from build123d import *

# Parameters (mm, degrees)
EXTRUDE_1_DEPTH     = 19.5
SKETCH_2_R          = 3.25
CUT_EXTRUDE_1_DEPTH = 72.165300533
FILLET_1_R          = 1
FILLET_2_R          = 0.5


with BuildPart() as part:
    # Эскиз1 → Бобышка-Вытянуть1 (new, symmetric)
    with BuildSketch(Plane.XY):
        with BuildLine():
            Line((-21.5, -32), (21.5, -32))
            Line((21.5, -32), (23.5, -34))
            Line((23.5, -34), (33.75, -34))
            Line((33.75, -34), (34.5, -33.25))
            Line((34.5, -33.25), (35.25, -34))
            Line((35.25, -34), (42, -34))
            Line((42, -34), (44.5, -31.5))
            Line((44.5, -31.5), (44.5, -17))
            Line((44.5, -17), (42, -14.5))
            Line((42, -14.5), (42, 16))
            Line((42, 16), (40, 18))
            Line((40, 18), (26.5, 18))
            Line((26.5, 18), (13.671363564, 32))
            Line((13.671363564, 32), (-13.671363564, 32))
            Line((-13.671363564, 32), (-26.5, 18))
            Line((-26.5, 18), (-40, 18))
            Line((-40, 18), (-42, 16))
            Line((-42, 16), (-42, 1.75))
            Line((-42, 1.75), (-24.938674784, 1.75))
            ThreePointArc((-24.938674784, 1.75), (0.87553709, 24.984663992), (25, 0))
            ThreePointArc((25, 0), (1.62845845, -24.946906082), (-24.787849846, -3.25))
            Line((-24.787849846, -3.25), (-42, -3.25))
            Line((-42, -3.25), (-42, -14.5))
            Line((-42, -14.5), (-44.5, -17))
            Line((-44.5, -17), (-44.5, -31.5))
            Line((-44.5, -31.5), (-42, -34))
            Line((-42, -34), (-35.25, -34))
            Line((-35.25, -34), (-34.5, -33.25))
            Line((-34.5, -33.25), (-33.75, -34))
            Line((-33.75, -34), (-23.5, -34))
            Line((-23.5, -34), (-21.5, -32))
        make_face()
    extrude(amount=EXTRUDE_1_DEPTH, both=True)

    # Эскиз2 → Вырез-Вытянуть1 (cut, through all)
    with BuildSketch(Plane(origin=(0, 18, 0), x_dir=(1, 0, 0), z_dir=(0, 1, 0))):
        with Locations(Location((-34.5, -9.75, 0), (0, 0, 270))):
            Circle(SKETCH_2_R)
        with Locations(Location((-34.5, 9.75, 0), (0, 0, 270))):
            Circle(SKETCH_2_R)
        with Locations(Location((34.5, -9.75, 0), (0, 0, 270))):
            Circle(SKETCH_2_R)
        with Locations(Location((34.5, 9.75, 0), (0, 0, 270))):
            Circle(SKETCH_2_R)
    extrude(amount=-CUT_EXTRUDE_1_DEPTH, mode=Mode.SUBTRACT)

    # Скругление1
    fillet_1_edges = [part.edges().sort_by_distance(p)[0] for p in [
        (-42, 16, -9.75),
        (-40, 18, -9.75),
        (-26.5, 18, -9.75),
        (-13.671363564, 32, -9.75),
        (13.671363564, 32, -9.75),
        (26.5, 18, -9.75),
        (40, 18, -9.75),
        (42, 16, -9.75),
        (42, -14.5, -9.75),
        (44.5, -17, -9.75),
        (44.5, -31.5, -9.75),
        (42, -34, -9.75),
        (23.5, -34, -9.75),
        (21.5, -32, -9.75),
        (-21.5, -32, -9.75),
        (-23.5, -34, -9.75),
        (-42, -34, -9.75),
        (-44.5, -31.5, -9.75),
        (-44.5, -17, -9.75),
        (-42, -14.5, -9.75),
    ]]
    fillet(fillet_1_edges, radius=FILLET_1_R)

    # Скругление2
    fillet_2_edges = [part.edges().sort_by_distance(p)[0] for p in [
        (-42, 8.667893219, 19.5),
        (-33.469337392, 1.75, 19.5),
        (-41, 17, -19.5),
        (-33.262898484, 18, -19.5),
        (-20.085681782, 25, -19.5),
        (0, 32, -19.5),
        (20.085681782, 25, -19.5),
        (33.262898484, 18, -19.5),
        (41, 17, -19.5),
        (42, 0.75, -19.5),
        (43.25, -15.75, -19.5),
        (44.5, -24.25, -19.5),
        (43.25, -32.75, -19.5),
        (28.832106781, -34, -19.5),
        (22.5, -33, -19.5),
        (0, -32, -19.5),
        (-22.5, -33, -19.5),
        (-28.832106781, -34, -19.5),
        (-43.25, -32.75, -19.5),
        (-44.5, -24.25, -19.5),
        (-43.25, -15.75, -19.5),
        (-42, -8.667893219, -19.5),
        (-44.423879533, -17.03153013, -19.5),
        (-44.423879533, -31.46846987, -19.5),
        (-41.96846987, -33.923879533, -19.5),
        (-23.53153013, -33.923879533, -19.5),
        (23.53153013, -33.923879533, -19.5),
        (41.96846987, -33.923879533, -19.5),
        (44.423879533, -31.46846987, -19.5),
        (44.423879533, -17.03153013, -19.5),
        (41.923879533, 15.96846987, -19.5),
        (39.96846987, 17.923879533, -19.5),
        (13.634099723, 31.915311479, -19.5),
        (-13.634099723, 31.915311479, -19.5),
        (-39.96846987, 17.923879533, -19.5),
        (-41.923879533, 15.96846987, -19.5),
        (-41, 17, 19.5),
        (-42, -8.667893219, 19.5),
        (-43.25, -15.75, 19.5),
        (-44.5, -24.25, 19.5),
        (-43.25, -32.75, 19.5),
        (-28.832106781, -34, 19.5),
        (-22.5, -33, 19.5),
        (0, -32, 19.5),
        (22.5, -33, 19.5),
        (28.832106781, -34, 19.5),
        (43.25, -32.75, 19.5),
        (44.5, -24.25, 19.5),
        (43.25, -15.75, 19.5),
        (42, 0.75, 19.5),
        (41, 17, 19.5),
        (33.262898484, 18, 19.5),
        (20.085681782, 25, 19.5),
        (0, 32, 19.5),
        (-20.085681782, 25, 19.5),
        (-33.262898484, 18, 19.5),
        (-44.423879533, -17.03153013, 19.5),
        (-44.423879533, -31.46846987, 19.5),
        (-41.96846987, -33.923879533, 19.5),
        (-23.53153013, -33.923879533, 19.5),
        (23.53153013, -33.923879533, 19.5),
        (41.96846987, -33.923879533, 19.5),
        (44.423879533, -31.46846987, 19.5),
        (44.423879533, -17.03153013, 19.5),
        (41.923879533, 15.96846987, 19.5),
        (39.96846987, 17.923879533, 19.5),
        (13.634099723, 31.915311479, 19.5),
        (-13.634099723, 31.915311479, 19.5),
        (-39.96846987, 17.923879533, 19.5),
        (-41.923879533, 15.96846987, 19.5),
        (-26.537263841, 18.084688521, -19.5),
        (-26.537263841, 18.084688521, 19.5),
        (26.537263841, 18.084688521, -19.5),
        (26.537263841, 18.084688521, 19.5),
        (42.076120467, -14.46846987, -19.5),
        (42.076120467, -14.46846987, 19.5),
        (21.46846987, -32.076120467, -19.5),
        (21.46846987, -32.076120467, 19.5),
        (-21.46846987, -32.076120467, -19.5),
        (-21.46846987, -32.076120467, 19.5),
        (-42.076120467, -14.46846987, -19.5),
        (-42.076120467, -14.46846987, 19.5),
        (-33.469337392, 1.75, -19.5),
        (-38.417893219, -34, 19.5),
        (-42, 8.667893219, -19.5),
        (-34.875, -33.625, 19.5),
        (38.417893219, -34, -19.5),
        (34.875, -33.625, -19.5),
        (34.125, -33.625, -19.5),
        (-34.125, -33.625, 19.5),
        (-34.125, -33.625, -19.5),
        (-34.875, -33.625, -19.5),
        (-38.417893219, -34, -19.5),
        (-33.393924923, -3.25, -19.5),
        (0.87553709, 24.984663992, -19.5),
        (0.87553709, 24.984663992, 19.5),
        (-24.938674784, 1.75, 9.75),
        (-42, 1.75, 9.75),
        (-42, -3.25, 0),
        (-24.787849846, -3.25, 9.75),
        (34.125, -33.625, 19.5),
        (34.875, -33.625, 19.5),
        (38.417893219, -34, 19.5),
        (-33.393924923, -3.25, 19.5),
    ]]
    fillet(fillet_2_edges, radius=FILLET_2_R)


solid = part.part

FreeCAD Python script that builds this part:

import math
import FreeCAD as App
import Part
import Sketcher

V = App.Vector
Q = App.Units.Quantity


def edges_at(feature, points):
    """Names of the edges that pass closest to the given points."""
    edges = feature.Shape.Edges
    near = lambda p: min(range(len(edges)), key=lambda i: edges[i].distToShape(Part.Vertex(*p))[0])
    return sorted({f"Edge{near(p) + 1}" for p in points})

doc = App.newDocument("Part")
body = doc.addObject("PartDesign::Body", "Body")

sketch1 = body.newObject("Sketcher::SketchObject", "Sketch")
sketch1.AttachmentSupport = (doc.getObject("XY_Plane"), [""])
sketch1.MapMode = "FlatFace"
sketch1.addGeometry([
    Part.LineSegment(V(-21.5, -32, 0), V(21.5, -32, 0)),
    Part.LineSegment(V(21.5, -32, 0), V(23.5, -34, 0)),
    Part.LineSegment(V(23.5, -34, 0), V(33.75, -34, 0)),
    Part.LineSegment(V(33.75, -34, 0), V(34.5, -33.25, 0)),
    Part.LineSegment(V(34.5, -33.25, 0), V(35.25, -34, 0)),
    Part.LineSegment(V(35.25, -34, 0), V(42, -34, 0)),
    Part.LineSegment(V(42, -34, 0), V(44.5, -31.5, 0)),
    Part.LineSegment(V(44.5, -31.5, 0), V(44.5, -17, 0)),
    Part.LineSegment(V(44.5, -17, 0), V(42, -14.5, 0)),
    Part.LineSegment(V(42, -14.5, 0), V(42, 16, 0)),
    Part.LineSegment(V(42, 16, 0), V(40, 18, 0)),
    Part.LineSegment(V(40, 18, 0), V(26.5, 18, 0)),
    Part.LineSegment(V(26.5, 18, 0), V(13.671364, 32, 0)),
    Part.LineSegment(V(13.671364, 32, 0), V(-13.671364, 32, 0)),
    Part.LineSegment(V(-13.671364, 32, 0), V(-26.5, 18, 0)),
    Part.LineSegment(V(-26.5, 18, 0), V(-40, 18, 0)),
    Part.LineSegment(V(-40, 18, 0), V(-42, 16, 0)),
    Part.LineSegment(V(-42, 16, 0), V(-42, 1.75, 0)),
    Part.LineSegment(V(-42, 1.75, 0), V(-24.938675, 1.75, 0)),
    Part.ArcOfCircle(Part.Circle(V(0, 0, 0), V(0, 0, 1), 25), math.radians(0), math.radians(175.986013)),
    Part.ArcOfCircle(Part.Circle(V(0, 0, 0), V(0, 0, 1), 25), math.radians(-172.530408), math.radians(0)),
    Part.LineSegment(V(-24.78785, -3.25, 0), V(-42, -3.25, 0)),
    Part.LineSegment(V(-42, -3.25, 0), V(-42, -14.5, 0)),
    Part.LineSegment(V(-42, -14.5, 0), V(-44.5, -17, 0)),
    Part.LineSegment(V(-44.5, -17, 0), V(-44.5, -31.5, 0)),
    Part.LineSegment(V(-44.5, -31.5, 0), V(-42, -34, 0)),
    Part.LineSegment(V(-42, -34, 0), V(-35.25, -34, 0)),
    Part.LineSegment(V(-35.25, -34, 0), V(-34.5, -33.25, 0)),
    Part.LineSegment(V(-34.5, -33.25, 0), V(-33.75, -34, 0)),
    Part.LineSegment(V(-33.75, -34, 0), V(-23.5, -34, 0)),
    Part.LineSegment(V(-23.5, -34, 0), V(-21.5, -32, 0)),
], False)
sketch1.addConstraint([
    Sketcher.Constraint("Coincident", 0, 2, 1, 1),
    Sketcher.Constraint("Coincident", 1, 2, 2, 1),
    Sketcher.Constraint("Coincident", 2, 2, 3, 1),
    Sketcher.Constraint("Coincident", 3, 2, 4, 1),
    Sketcher.Constraint("Coincident", 4, 2, 5, 1),
    Sketcher.Constraint("Coincident", 5, 2, 6, 1),
    Sketcher.Constraint("Coincident", 6, 2, 7, 1),
    Sketcher.Constraint("Coincident", 7, 2, 8, 1),
    Sketcher.Constraint("Coincident", 8, 2, 9, 1),
    Sketcher.Constraint("Coincident", 9, 2, 10, 1),
    Sketcher.Constraint("Coincident", 10, 2, 11, 1),
    Sketcher.Constraint("Coincident", 11, 2, 12, 1),
    Sketcher.Constraint("Coincident", 12, 2, 13, 1),
    Sketcher.Constraint("Coincident", 13, 2, 14, 1),
    Sketcher.Constraint("Coincident", 14, 2, 15, 1),
    Sketcher.Constraint("Coincident", 15, 2, 16, 1),
    Sketcher.Constraint("Coincident", 16, 2, 17, 1),
    Sketcher.Constraint("Coincident", 17, 2, 18, 1),
    Sketcher.Constraint("Coincident", 18, 2, 19, 2),
    Sketcher.Constraint("Tangent", 19, 1, 20, 2),
    Sketcher.Constraint("Coincident", 20, 1, 21, 1),
    Sketcher.Constraint("Coincident", 21, 2, 22, 1),
    Sketcher.Constraint("Coincident", 22, 2, 23, 1),
    Sketcher.Constraint("Coincident", 23, 2, 24, 1),
    Sketcher.Constraint("Coincident", 24, 2, 25, 1),
    Sketcher.Constraint("Coincident", 25, 2, 26, 1),
    Sketcher.Constraint("Coincident", 26, 2, 27, 1),
    Sketcher.Constraint("Coincident", 27, 2, 28, 1),
    Sketcher.Constraint("Coincident", 28, 2, 29, 1),
    Sketcher.Constraint("Coincident", 29, 2, 30, 1),
    Sketcher.Constraint("Coincident", 30, 2, 0, 1),
    Sketcher.Constraint("Horizontal", 0),
    Sketcher.Constraint("Horizontal", 2),
    Sketcher.Constraint("Horizontal", 5),
    Sketcher.Constraint("Vertical", 7),
    Sketcher.Constraint("Vertical", 9),
    Sketcher.Constraint("Horizontal", 11),
    Sketcher.Constraint("Horizontal", 13),
    Sketcher.Constraint("Horizontal", 15),
    Sketcher.Constraint("Vertical", 17),
    Sketcher.Constraint("Horizontal", 18),
    Sketcher.Constraint("Horizontal", 21),
    Sketcher.Constraint("Vertical", 22),
    Sketcher.Constraint("Vertical", 24),
    Sketcher.Constraint("Horizontal", 26),
    Sketcher.Constraint("Horizontal", 29),
    Sketcher.Constraint("Coincident", 19, 3, -1, 1),
    Sketcher.Constraint("Equal", 19, 20),
    Sketcher.Constraint("Symmetric", 11, 2, 14, 2, -2),
    Sketcher.Constraint("Symmetric", 9, 2, 16, 2, -2),
    Sketcher.Constraint("Symmetric", 8, 2, 22, 2, -2),
    Sketcher.Constraint("Symmetric", 7, 2, 23, 2, -2),
    Sketcher.Constraint("Symmetric", 5, 2, 25, 2, -2),
    Sketcher.Constraint("Symmetric", 3, 2, 27, 2, -2),
    Sketcher.Constraint("Symmetric", 2, 2, 28, 2, -2),
    Sketcher.Constraint("PointOnObject", 19, 1, -1),
    Sketcher.Constraint("Perpendicular", 1, 3),
    Sketcher.Constraint("Perpendicular", 3, 4),
    Sketcher.Constraint("Perpendicular", 4, 6),
    Sketcher.Constraint("Perpendicular", 6, 8),
    Sketcher.Constraint("Parallel", 8, 10),
    Sketcher.Constraint("Perpendicular", 10, 16),
    Sketcher.Constraint("Parallel", 16, 23),
    Sketcher.Constraint("Perpendicular", 23, 25),
    Sketcher.Constraint("Perpendicular", 25, 27),
    Sketcher.Constraint("Perpendicular", 28, 30),
    Sketcher.Constraint("Horizontal", 2, 2, 4, 2),
    Sketcher.Constraint("Vertical", 5, 2, 8, 2),
    Sketcher.Constraint("Equal", 2, 29),
    Sketcher.Constraint("Equal", 1, 10),
    Sketcher.Constraint("Equal", 12, 14),
    Sketcher.Constraint("Radius", 19, Q("25 mm")),
    Sketcher.Constraint("DistanceX", 0, 1, 0, 2, Q("43 mm")),
    Sketcher.Constraint("DistanceX", 11, 2, 11, 1, Q("13.5 mm")),
    Sketcher.Constraint("DistanceY", 7, 1, 7, 2, Q("14.5 mm")),
    Sketcher.Constraint("DistanceY", 9, 1, 9, 2, Q("30.5 mm")),
    Sketcher.Constraint("DistanceY", 0, 2, -1, 1, Q("32 mm")),
    Sketcher.Constraint("DistanceY", 1, 2, -1, 1, Q("34 mm")),
    Sketcher.Constraint("DistanceX", -1, 1, 5, 2, Q("42 mm")),
    Sketcher.Constraint("DistanceY", 7, 2, -1, 1, Q("17 mm")),
    Sketcher.Constraint("DistanceY", -1, 1, 12, 2, Q("32 mm")),
    Sketcher.Constraint("Angle", 12, Q("132.5 deg")),
    Sketcher.Constraint("DistanceX", 1, 2, 3, 2, Q("11 mm")),
    Sketcher.Constraint("DistanceY", 20, 1, 18, 2, Q("5 mm")),
    Sketcher.Constraint("DistanceX", 2, 1, 2, 2, Q("10.25 mm")),
    Sketcher.Constraint("DistanceY", 17, 2, 17, 1, Q("14.25 mm")),
])
pad1 = body.newObject("PartDesign::Pad", "Pad")
pad1.Profile = sketch1
pad1.Length = 39
pad1.Midplane = True

sketch2 = body.newObject("Sketcher::SketchObject", "Sketch001")
sketch2.AttachmentSupport = (doc.getObject("XZ_Plane"), [""])
sketch2.MapMode = "FlatFace"
sketch2.AttachmentOffset = App.Placement(V(0, 0, -18), App.Rotation())
sketch2.addGeometry([
    Part.Circle(V(-34.5, 9.75, 0), V(0, 0, 1), 3.25),
    Part.Circle(V(-34.5, -9.75, 0), V(0, 0, 1), 3.25),
    Part.Circle(V(34.5, 9.75, 0), V(0, 0, 1), 3.25),
    Part.Circle(V(34.5, -9.75, 0), V(0, 0, 1), 3.25),
], False)
sketch2.addConstraint([
    Sketcher.Constraint("Equal", 0, 1),
    Sketcher.Constraint("Equal", 1, 2),
    Sketcher.Constraint("Equal", 2, 3),
    Sketcher.Constraint("Symmetric", 1, 3, 2, 3, -1, 1),
    Sketcher.Constraint("Symmetric", 0, 3, 3, 3, -1, 1),
    Sketcher.Constraint("Symmetric", 0, 3, 2, 3, -2),
    Sketcher.Constraint("Diameter", 0, Q("6.5 mm")),
    Sketcher.Constraint("DistanceX", 0, 3, 2, 3, Q("69 mm")),
    Sketcher.Constraint("DistanceY", 1, 3, 0, 3, Q("19.5 mm")),
])
pocket1 = body.newObject("PartDesign::Pocket", "Pocket")
pocket1.Profile = sketch2
pocket1.Type = "ThroughAll"
pocket1.Reversed = True
doc.recompute()

fillet = body.newObject("PartDesign::Fillet", "Fillet")
fillet.Base = (pocket1, edges_at(pocket1, [
    (-42, 16, 0),
    (-40, 18, 0),
    (-26.5, 18, 0),
    (-13.671, 32, 0),
    (13.671, 32, 0),
    (26.5, 18, 0),
    (40, 18, 0),
    (42, 16, 0),
    (42, -14.5, 0),
    (44.5, -17, 0),
    (44.5, -31.5, 0),
    (42, -34, 0),
    (23.5, -34, 0),
    (21.5, -32, 0),
    (-21.5, -32, 0),
    (-23.5, -34, 0),
    (-42, -34, 0),
    (-44.5, -31.5, 0),
    (-44.5, -17, 0),
    (-42, -14.5, 0),
]))
fillet.Radius = 1
doc.recompute()

fillet2 = body.newObject("PartDesign::Fillet", "Fillet001")
fillet2.Base = (fillet, edges_at(fillet, [
    (-42, 8.668, 19.5),
    (-33.469, 1.75, 19.5),
    (-41, 17, -19.5),
    (-33.263, 18, -19.5),
    (-20.086, 25, -19.5),
    (0, 32, -19.5),
    (20.086, 25, -19.5),
    (33.263, 18, -19.5),
    (41, 17, -19.5),
    (42, 0.75, -19.5),
    (43.25, -15.75, -19.5),
    (44.5, -24.25, -19.5),
    (43.25, -32.75, -19.5),
    (28.832, -34, -19.5),
    (22.5, -33, -19.5),
    (0, -32, -19.5),
    (-22.5, -33, -19.5),
    (-28.832, -34, -19.5),
    (-43.25, -32.75, -19.5),
    (-44.5, -24.25, -19.5),
    (-43.25, -15.75, -19.5),
    (-42, -8.668, -19.5),
    (-44.424, -17.032, -19.5),
    (-44.424, -31.468, -19.5),
    (-41.968, -33.924, -19.5),
    (-23.532, -33.924, -19.5),
    (23.532, -33.924, -19.5),
    (41.968, -33.924, -19.5),
    (44.424, -31.468, -19.5),
    (44.424, -17.032, -19.5),
    (41.924, 15.968, -19.5),
    (39.968, 17.924, -19.5),
    (13.634, 31.915, -19.5),
    (-13.634, 31.915, -19.5),
    (-39.968, 17.924, -19.5),
    (-41.924, 15.968, -19.5),
    (-41, 17, 19.5),
    (-42, -8.668, 19.5),
    (-43.25, -15.75, 19.5),
    (-44.5, -24.25, 19.5),
    (-43.25, -32.75, 19.5),
    (-28.832, -34, 19.5),
    (-22.5, -33, 19.5),
    (0, -32, 19.5),
    (22.5, -33, 19.5),
    (28.832, -34, 19.5),
    (43.25, -32.75, 19.5),
    (44.5, -24.25, 19.5),
    (43.25, -15.75, 19.5),
    (42, 0.75, 19.5),
    (41, 17, 19.5),
    (33.263, 18, 19.5),
    (20.086, 25, 19.5),
    (0, 32, 19.5),
    (-20.086, 25, 19.5),
    (-33.263, 18, 19.5),
    (-44.424, -17.032, 19.5),
    (-44.424, -31.468, 19.5),
    (-41.968, -33.924, 19.5),
    (-23.532, -33.924, 19.5),
    (23.532, -33.924, 19.5),
    (41.968, -33.924, 19.5),
    (44.424, -31.468, 19.5),
    (44.424, -17.032, 19.5),
    (41.924, 15.968, 19.5),
    (39.968, 17.924, 19.5),
    (13.634, 31.915, 19.5),
    (-13.634, 31.915, 19.5),
    (-39.968, 17.924, 19.5),
    (-41.924, 15.968, 19.5),
    (-26.537, 18.085, -19.5),
    (-26.537, 18.085, 19.5),
    (26.537, 18.085, -19.5),
    (26.537, 18.085, 19.5),
    (42.076, -14.468, -19.5),
    (42.076, -14.468, 19.5),
    (21.468, -32.076, -19.5),
    (21.468, -32.076, 19.5),
    (-21.468, -32.076, -19.5),
    (-21.468, -32.076, 19.5),
    (-42.076, -14.468, -19.5),
    (-42.076, -14.468, 19.5),
    (-33.469, 1.75, -19.5),
    (-38.418, -34, 19.5),
    (-42, 8.668, -19.5),
    (-34.875, -33.625, 19.5),
    (38.418, -34, -19.5),
    (34.875, -33.625, -19.5),
    (34.125, -33.625, -19.5),
    (-34.125, -33.625, 19.5),
    (-34.125, -33.625, -19.5),
    (-34.875, -33.625, -19.5),
    (-38.418, -34, -19.5),
    (-33.394, -3.25, -19.5),
    (0.876, 24.985, -19.5),
    (0.876, 24.985, 19.5),
    (-24.939, 1.75, 0),
    (-42, 1.75, 0),
    (-42, -3.25, 0),
    (-24.788, -3.25, 0),
    (34.125, -33.625, 19.5),
    (34.875, -33.625, 19.5),
    (38.418, -34, 19.5),
    (-33.394, -3.25, 19.5),
]))
fillet2.Radius = 0.5

doc.recompute()
